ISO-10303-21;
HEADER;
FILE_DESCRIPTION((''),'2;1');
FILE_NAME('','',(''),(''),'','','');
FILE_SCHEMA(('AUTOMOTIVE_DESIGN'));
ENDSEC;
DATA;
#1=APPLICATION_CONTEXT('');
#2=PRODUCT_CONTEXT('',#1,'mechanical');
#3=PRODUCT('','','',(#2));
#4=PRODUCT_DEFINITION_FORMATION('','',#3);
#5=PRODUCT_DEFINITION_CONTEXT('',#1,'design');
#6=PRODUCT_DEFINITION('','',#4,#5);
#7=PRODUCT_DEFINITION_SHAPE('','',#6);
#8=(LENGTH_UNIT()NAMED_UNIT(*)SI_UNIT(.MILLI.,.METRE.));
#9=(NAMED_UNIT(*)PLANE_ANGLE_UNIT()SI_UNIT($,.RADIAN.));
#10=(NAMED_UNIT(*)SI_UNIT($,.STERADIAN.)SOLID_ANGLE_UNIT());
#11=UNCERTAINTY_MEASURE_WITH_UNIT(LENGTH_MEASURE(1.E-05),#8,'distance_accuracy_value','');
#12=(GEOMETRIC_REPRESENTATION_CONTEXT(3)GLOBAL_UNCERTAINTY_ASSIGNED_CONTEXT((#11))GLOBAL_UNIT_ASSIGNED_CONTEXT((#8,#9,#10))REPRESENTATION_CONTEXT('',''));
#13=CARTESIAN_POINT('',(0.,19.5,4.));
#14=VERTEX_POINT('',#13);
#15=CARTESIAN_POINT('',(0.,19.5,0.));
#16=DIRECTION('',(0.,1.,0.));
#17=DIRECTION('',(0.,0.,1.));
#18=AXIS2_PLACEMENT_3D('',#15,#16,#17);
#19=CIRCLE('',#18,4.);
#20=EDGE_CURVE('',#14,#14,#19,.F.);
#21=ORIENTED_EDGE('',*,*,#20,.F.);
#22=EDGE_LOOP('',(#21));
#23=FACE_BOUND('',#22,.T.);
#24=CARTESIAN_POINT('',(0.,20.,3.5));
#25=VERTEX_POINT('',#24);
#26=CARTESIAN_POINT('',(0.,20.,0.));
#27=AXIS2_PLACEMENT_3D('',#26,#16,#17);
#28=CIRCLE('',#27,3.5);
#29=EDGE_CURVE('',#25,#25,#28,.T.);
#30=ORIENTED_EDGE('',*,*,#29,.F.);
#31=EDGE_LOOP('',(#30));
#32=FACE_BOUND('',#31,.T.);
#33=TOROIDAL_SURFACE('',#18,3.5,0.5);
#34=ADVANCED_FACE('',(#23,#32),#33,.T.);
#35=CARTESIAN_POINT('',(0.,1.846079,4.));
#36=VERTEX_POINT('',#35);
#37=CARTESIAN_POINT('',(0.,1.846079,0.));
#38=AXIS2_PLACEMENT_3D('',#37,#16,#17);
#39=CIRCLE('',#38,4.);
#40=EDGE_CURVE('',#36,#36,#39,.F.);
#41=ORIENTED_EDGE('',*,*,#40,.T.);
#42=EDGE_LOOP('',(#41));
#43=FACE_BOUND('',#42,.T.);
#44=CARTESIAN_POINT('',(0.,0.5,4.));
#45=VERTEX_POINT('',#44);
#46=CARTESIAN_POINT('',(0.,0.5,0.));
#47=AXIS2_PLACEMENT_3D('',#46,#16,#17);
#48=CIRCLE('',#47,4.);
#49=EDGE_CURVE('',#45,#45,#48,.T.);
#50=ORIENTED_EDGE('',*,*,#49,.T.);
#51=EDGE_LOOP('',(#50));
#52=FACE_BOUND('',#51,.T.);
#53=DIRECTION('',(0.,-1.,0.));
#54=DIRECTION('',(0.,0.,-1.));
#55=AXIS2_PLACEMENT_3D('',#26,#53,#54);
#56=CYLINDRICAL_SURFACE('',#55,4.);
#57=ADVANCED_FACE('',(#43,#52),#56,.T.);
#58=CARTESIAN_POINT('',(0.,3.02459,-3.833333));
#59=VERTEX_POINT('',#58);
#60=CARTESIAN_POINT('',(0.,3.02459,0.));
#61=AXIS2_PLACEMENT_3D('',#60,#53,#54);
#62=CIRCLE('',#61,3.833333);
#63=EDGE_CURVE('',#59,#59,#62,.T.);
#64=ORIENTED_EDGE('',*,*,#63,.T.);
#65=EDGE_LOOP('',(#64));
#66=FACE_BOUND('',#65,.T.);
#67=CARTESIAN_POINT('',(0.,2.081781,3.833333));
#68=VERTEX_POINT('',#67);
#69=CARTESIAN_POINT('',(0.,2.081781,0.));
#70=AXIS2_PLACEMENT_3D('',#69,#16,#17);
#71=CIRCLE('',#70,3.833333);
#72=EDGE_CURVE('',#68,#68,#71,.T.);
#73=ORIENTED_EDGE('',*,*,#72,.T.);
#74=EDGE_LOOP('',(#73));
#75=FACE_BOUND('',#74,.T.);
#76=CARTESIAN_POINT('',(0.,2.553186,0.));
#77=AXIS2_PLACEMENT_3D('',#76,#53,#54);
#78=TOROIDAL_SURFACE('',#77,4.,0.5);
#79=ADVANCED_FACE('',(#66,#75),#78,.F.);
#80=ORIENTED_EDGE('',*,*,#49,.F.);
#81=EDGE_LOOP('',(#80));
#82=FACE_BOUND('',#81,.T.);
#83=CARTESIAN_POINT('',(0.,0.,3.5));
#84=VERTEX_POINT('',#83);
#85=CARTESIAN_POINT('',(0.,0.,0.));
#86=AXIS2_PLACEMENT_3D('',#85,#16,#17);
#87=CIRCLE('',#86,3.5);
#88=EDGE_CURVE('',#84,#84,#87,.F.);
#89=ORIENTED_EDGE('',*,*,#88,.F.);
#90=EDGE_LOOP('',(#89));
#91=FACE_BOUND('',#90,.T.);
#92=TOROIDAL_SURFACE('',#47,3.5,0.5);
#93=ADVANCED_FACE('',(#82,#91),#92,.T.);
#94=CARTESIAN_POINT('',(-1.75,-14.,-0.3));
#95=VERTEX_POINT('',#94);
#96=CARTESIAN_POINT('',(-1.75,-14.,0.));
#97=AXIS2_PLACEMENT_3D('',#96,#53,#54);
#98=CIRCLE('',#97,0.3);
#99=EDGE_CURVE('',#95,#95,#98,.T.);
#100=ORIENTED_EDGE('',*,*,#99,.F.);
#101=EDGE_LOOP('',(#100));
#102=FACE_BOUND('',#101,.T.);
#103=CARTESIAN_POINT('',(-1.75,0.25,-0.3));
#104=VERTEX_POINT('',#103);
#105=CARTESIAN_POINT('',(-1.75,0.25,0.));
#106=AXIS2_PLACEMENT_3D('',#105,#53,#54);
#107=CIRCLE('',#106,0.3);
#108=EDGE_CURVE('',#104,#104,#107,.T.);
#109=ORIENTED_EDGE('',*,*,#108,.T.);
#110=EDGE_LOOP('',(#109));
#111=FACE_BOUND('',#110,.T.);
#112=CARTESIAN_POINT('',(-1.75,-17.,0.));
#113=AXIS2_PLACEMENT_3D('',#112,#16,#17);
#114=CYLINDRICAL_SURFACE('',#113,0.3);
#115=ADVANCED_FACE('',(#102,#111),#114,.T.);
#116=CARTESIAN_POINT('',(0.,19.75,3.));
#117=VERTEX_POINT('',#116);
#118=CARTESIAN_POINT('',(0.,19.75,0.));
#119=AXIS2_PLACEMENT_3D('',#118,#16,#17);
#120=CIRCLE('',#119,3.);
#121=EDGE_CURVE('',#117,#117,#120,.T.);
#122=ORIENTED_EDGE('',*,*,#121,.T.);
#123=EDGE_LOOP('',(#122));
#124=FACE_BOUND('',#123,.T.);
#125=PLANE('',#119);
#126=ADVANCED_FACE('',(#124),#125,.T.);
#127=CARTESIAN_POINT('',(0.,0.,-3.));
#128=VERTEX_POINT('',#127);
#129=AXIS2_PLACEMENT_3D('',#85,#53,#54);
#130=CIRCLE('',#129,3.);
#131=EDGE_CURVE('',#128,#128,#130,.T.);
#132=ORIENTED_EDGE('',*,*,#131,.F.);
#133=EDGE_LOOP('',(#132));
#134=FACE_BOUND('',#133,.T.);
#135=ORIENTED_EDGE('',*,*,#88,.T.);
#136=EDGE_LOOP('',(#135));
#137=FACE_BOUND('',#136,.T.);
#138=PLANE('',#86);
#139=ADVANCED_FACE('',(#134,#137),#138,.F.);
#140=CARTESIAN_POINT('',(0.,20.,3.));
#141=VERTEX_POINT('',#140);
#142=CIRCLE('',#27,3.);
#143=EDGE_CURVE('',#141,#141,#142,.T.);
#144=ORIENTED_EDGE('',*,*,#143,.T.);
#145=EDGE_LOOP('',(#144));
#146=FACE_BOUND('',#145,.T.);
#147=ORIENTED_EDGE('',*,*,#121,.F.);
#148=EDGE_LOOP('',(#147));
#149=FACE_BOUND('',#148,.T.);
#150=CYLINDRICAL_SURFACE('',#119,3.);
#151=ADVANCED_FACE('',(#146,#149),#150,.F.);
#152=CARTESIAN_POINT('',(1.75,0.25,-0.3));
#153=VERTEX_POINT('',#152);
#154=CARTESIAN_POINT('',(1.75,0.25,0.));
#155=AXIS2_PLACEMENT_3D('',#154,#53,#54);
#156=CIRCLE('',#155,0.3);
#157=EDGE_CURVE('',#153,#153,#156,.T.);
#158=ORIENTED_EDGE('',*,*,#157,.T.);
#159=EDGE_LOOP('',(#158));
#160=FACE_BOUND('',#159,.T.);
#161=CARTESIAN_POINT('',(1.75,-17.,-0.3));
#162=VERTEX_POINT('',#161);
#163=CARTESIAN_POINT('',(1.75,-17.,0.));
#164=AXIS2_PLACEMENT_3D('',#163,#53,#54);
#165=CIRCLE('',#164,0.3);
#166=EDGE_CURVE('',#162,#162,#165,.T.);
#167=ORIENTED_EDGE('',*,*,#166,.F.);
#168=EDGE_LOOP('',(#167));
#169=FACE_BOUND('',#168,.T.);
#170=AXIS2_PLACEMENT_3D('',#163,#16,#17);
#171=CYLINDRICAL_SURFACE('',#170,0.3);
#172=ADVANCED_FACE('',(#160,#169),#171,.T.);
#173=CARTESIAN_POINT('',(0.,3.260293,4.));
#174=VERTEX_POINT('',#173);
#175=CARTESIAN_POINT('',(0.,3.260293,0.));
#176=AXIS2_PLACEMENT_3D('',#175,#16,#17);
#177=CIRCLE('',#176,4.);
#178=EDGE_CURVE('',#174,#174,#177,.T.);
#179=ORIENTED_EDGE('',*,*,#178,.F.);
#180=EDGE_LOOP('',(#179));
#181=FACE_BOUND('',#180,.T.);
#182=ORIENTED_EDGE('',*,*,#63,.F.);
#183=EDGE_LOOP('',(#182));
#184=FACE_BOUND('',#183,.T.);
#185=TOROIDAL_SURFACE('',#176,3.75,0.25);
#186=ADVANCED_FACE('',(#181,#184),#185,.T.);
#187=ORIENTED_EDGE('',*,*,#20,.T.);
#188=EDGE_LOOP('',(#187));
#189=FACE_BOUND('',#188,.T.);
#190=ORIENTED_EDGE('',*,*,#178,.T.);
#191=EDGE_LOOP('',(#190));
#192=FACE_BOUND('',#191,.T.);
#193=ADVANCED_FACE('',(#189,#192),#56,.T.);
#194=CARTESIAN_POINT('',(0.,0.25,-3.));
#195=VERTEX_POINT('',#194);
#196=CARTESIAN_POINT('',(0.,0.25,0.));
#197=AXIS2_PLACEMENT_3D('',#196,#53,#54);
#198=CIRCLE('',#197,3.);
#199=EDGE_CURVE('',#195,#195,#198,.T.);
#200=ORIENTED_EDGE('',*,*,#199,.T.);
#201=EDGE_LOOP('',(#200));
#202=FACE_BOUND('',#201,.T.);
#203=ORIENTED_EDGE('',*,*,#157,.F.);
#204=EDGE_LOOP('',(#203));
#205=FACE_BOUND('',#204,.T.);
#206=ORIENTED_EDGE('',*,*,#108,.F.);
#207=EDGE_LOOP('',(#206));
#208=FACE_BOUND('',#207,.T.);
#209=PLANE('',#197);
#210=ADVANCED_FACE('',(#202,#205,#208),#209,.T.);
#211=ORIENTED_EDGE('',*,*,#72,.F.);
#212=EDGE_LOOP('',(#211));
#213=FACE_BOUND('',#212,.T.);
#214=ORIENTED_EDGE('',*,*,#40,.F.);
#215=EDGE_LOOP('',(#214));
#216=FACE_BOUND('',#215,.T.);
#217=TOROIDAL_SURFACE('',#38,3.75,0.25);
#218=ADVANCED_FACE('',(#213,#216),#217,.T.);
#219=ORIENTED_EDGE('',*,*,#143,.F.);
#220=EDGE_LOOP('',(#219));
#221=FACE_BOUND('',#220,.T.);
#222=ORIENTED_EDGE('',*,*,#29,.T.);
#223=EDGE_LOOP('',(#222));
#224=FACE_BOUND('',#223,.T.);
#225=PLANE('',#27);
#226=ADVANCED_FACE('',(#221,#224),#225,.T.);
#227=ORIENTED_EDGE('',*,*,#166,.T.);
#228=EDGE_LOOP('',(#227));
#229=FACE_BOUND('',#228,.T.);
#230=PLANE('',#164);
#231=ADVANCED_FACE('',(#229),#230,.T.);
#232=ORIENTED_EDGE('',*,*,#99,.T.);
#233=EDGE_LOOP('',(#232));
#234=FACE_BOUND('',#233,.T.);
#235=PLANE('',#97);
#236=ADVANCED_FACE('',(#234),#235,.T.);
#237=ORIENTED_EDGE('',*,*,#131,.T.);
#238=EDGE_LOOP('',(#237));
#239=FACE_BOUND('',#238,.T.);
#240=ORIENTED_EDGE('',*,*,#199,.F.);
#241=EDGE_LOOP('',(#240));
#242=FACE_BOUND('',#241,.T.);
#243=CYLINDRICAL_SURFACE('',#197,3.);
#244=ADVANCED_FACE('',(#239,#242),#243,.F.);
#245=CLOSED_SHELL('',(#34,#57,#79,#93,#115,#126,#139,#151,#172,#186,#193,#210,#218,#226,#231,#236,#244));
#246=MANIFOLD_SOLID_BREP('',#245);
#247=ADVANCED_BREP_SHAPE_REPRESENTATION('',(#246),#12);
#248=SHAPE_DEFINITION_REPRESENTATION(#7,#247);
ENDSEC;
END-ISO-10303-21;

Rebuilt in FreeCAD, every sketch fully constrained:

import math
import FreeCAD as App
import Part
import Sketcher

V = App.Vector


def edges_at(feature, points):
    """Names of the edges that pass closest to the given points."""
    edges = feature.Shape.Edges
    near = lambda p: min(range(len(edges)), key=lambda i: edges[i].distToShape(Part.Vertex(*p))[0])
    return sorted({f"Edge{near(p) + 1}" for p in points})

doc = App.newDocument("Part")
params = doc.addObject("Spreadsheet::Sheet", "Params")
for row, (alias, value) in enumerate([
    ("sketch1_diameter", "8 mm"),
    ("pad1_length", "20 mm"),
    ("sketch2_radius", "0.5 mm"),
    ("groove_angle", "360 deg"),
    ("fillet_radius", "0.5 mm"),
    ("fillet2_radius", "0.25 mm"),
    ("sketch3_diameter", "6 mm"),
    ("pocket1_length", "0.25 mm"),
    ("sketch4_diameter", "0.6 mm"),
    ("pad2_length", "17.25 mm"),
    ("sketch5_diameter", "0.6 mm"),
    ("pocket2_length", "3 mm"),
    ("sketch6_diameter", "6 mm"),
    ("pocket3_length", "0.25 mm"),
], start=1):
    params.set(f"A{row}", alias)
    params.set(f"B{row}", "=" + value)
    params.setAlias(f"B{row}", alias)

body = doc.addObject("PartDesign::Body", "Body")

# Sketch on XZ plane
sketch1 = body.newObject("Sketcher::SketchObject", "Sketch")
sketch1.AttachmentSupport = (doc.getObject("XZ_Plane"), [""])
sketch1.MapMode = "FlatFace"
sketch1.addGeometry(Part.Circle(V(0, 0, 0), V(0, 0, 1), 4), False)
sketch1.addConstraint([
    Sketcher.Constraint("Coincident", 0, 3, -1, 1),
    Sketcher.Constraint("Diameter", 0, 8.0),
])
sketch1.setExpression("Constraints[1]", "Params.sketch1_diameter")
pad1 = body.newObject("PartDesign::Pad", "Pad")
pad1.Profile = sketch1
pad1.setExpression("Length", "Params.pad1_length")
pad1.Reversed = True

# Sketch on YZ plane
sketch2 = body.newObject("Sketcher::SketchObject", "Sketch001")
sketch2.AttachmentSupport = (doc.getObject("YZ_Plane"), [""])
sketch2.MapMode = "FlatFace"
sketch2.addGeometry([
    Part.LineSegment(V(3.053186, 4, 0), V(2.053186, 4, 0)),
    Part.ArcOfCircle(Part.Circle(V(2.553186, 4, 0), V(0, 0, 1), 0.5), math.radians(180), math.radians(360)),
], False)
sketch2.addConstraint([
    Sketcher.Constraint("Coincident", 0, 1, 1, 2),
    Sketcher.Constraint("Coincident", 1, 1, 0, 2),
    Sketcher.Constraint("Horizontal", 0),
    Sketcher.Constraint("Horizontal", 1, 3, 0, 1),
    Sketcher.Constraint("Radius", 1, 0.5),
    Sketcher.Constraint("DistanceY", -1, 1, 1, 3, 4.0),
    Sketcher.Constraint("DistanceX", -1, 1, 1, 3, 2.553186),
])
sketch2.setExpression("Constraints[4]", "Params.sketch2_radius")
groove = body.newObject("PartDesign::Groove", "Groove")
groove.Profile = sketch2
groove.ReferenceAxis = (sketch2, ["H_Axis"])
groove.setExpression("Angle", "Params.groove_angle")
doc.recompute()

fillet = body.newObject("PartDesign::Fillet", "Fillet")
fillet.Base = (groove, edges_at(groove, [(0, 0, -4), (0, 20, -4)]))
fillet.setExpression("Radius", "Params.fillet_radius")
doc.recompute()

fillet2 = body.newObject("PartDesign::Fillet", "Fillet001")
fillet2.Base = (fillet, edges_at(fillet, [(-4, 2.053, 0), (-4, 3.053, 0)]))
fillet2.setExpression("Radius", "Params.fillet2_radius")

# Sketch on XZ plane
sketch3 = body.newObject("Sketcher::SketchObject", "Sketch002")
sketch3.AttachmentSupport = (doc.getObject("XZ_Plane"), [""])
sketch3.MapMode = "FlatFace"
sketch3.addGeometry(Part.Circle(V(0, 0, 0), V(0, 0, 1), 3), False)
sketch3.addConstraint([
    Sketcher.Constraint("Coincident", 0, 3, -1, 1),
    Sketcher.Constraint("Diameter", 0, 6.0),
])
sketch3.setExpression("Constraints[1]", "Params.sketch3_diameter")
pocket1 = body.newObject("PartDesign::Pocket", "Pocket")
pocket1.Profile = sketch3
pocket1.setExpression("Length", "Params.pocket1_length")

# Sketch on XZ plane
sketch4 = body.newObject("Sketcher::SketchObject", "Sketch003")
sketch4.AttachmentSupport = (doc.getObject("XZ_Plane"), [""])
sketch4.MapMode = "FlatFace"
sketch4.AttachmentOffset = App.Placement(V(0, 0, -0.25), App.Rotation())
sketch4.addGeometry([
    Part.Circle(V(-1.75, 0, 0), V(0, 0, 1), 0.3),
    Part.Circle(V(1.75, 0, 0), V(0, 0, 1), 0.3),
], False)
sketch4.addConstraint([
    Sketcher.Constraint("Equal", 0, 1),
    Sketcher.Constraint("Symmetric", 0, 3, 1, 3, -1, 1),
    Sketcher.Constraint("PointOnObject", 0, 3, -1),
    Sketcher.Constraint("Diameter", 0, 0.6),
    Sketcher.Constraint("DistanceX", 0, 3, 1, 3, 3.5),
])
sketch4.setExpression("Constraints[3]", "Params.sketch4_diameter")
pad2 = body.newObject("PartDesign::Pad", "Pad001")
pad2.Profile = sketch4
pad2.setExpression("Length", "Params.pad2_length")

# Sketch on XZ plane
sketch5 = body.newObject("Sketcher::SketchObject", "Sketch004")
sketch5.AttachmentSupport = (doc.getObject("XZ_Plane"), [""])
sketch5.MapMode = "FlatFace"
sketch5.AttachmentOffset = App.Placement(V(0, 0, 17), App.Rotation())
sketch5.addGeometry(Part.Circle(V(-1.75, 0, 0), V(0, 0, 1), 0.3), False)
sketch5.addConstraint([
    Sketcher.Constraint("PointOnObject", 0, 3, -1),
    Sketcher.Constraint("Diameter", 0, 0.6),
    Sketcher.Constraint("DistanceX", 0, 3, -1, 1, 1.75),
])
sketch5.setExpression("Constraints[1]", "Params.sketch5_diameter")
pocket2 = body.newObject("PartDesign::Pocket", "Pocket001")
pocket2.Profile = sketch5
pocket2.setExpression("Length", "Params.pocket2_length")

# Sketch on XZ plane
sketch6 = body.newObject("Sketcher::SketchObject", "Sketch005")
sketch6.AttachmentSupport = (doc.getObject("XZ_Plane"), [""])
sketch6.MapMode = "FlatFace"
sketch6.AttachmentOffset = App.Placement(V(0, 0, -20), App.Rotation())
sketch6.addGeometry(Part.Circle(V(0, 0, 0), V(0, 0, 1), 3), False)
sketch6.addConstraint([
    Sketcher.Constraint("Coincident", 0, 3, -1, 1),
    Sketcher.Constraint("Diameter", 0, 6.0),
])
sketch6.setExpression("Constraints[1]", "Params.sketch6_diameter")
pocket3 = body.newObject("PartDesign::Pocket", "Pocket002")
pocket3.Profile = sketch6
pocket3.setExpression("Length", "Params.pocket3_length")
pocket3.Reversed = True

doc.recompute()
